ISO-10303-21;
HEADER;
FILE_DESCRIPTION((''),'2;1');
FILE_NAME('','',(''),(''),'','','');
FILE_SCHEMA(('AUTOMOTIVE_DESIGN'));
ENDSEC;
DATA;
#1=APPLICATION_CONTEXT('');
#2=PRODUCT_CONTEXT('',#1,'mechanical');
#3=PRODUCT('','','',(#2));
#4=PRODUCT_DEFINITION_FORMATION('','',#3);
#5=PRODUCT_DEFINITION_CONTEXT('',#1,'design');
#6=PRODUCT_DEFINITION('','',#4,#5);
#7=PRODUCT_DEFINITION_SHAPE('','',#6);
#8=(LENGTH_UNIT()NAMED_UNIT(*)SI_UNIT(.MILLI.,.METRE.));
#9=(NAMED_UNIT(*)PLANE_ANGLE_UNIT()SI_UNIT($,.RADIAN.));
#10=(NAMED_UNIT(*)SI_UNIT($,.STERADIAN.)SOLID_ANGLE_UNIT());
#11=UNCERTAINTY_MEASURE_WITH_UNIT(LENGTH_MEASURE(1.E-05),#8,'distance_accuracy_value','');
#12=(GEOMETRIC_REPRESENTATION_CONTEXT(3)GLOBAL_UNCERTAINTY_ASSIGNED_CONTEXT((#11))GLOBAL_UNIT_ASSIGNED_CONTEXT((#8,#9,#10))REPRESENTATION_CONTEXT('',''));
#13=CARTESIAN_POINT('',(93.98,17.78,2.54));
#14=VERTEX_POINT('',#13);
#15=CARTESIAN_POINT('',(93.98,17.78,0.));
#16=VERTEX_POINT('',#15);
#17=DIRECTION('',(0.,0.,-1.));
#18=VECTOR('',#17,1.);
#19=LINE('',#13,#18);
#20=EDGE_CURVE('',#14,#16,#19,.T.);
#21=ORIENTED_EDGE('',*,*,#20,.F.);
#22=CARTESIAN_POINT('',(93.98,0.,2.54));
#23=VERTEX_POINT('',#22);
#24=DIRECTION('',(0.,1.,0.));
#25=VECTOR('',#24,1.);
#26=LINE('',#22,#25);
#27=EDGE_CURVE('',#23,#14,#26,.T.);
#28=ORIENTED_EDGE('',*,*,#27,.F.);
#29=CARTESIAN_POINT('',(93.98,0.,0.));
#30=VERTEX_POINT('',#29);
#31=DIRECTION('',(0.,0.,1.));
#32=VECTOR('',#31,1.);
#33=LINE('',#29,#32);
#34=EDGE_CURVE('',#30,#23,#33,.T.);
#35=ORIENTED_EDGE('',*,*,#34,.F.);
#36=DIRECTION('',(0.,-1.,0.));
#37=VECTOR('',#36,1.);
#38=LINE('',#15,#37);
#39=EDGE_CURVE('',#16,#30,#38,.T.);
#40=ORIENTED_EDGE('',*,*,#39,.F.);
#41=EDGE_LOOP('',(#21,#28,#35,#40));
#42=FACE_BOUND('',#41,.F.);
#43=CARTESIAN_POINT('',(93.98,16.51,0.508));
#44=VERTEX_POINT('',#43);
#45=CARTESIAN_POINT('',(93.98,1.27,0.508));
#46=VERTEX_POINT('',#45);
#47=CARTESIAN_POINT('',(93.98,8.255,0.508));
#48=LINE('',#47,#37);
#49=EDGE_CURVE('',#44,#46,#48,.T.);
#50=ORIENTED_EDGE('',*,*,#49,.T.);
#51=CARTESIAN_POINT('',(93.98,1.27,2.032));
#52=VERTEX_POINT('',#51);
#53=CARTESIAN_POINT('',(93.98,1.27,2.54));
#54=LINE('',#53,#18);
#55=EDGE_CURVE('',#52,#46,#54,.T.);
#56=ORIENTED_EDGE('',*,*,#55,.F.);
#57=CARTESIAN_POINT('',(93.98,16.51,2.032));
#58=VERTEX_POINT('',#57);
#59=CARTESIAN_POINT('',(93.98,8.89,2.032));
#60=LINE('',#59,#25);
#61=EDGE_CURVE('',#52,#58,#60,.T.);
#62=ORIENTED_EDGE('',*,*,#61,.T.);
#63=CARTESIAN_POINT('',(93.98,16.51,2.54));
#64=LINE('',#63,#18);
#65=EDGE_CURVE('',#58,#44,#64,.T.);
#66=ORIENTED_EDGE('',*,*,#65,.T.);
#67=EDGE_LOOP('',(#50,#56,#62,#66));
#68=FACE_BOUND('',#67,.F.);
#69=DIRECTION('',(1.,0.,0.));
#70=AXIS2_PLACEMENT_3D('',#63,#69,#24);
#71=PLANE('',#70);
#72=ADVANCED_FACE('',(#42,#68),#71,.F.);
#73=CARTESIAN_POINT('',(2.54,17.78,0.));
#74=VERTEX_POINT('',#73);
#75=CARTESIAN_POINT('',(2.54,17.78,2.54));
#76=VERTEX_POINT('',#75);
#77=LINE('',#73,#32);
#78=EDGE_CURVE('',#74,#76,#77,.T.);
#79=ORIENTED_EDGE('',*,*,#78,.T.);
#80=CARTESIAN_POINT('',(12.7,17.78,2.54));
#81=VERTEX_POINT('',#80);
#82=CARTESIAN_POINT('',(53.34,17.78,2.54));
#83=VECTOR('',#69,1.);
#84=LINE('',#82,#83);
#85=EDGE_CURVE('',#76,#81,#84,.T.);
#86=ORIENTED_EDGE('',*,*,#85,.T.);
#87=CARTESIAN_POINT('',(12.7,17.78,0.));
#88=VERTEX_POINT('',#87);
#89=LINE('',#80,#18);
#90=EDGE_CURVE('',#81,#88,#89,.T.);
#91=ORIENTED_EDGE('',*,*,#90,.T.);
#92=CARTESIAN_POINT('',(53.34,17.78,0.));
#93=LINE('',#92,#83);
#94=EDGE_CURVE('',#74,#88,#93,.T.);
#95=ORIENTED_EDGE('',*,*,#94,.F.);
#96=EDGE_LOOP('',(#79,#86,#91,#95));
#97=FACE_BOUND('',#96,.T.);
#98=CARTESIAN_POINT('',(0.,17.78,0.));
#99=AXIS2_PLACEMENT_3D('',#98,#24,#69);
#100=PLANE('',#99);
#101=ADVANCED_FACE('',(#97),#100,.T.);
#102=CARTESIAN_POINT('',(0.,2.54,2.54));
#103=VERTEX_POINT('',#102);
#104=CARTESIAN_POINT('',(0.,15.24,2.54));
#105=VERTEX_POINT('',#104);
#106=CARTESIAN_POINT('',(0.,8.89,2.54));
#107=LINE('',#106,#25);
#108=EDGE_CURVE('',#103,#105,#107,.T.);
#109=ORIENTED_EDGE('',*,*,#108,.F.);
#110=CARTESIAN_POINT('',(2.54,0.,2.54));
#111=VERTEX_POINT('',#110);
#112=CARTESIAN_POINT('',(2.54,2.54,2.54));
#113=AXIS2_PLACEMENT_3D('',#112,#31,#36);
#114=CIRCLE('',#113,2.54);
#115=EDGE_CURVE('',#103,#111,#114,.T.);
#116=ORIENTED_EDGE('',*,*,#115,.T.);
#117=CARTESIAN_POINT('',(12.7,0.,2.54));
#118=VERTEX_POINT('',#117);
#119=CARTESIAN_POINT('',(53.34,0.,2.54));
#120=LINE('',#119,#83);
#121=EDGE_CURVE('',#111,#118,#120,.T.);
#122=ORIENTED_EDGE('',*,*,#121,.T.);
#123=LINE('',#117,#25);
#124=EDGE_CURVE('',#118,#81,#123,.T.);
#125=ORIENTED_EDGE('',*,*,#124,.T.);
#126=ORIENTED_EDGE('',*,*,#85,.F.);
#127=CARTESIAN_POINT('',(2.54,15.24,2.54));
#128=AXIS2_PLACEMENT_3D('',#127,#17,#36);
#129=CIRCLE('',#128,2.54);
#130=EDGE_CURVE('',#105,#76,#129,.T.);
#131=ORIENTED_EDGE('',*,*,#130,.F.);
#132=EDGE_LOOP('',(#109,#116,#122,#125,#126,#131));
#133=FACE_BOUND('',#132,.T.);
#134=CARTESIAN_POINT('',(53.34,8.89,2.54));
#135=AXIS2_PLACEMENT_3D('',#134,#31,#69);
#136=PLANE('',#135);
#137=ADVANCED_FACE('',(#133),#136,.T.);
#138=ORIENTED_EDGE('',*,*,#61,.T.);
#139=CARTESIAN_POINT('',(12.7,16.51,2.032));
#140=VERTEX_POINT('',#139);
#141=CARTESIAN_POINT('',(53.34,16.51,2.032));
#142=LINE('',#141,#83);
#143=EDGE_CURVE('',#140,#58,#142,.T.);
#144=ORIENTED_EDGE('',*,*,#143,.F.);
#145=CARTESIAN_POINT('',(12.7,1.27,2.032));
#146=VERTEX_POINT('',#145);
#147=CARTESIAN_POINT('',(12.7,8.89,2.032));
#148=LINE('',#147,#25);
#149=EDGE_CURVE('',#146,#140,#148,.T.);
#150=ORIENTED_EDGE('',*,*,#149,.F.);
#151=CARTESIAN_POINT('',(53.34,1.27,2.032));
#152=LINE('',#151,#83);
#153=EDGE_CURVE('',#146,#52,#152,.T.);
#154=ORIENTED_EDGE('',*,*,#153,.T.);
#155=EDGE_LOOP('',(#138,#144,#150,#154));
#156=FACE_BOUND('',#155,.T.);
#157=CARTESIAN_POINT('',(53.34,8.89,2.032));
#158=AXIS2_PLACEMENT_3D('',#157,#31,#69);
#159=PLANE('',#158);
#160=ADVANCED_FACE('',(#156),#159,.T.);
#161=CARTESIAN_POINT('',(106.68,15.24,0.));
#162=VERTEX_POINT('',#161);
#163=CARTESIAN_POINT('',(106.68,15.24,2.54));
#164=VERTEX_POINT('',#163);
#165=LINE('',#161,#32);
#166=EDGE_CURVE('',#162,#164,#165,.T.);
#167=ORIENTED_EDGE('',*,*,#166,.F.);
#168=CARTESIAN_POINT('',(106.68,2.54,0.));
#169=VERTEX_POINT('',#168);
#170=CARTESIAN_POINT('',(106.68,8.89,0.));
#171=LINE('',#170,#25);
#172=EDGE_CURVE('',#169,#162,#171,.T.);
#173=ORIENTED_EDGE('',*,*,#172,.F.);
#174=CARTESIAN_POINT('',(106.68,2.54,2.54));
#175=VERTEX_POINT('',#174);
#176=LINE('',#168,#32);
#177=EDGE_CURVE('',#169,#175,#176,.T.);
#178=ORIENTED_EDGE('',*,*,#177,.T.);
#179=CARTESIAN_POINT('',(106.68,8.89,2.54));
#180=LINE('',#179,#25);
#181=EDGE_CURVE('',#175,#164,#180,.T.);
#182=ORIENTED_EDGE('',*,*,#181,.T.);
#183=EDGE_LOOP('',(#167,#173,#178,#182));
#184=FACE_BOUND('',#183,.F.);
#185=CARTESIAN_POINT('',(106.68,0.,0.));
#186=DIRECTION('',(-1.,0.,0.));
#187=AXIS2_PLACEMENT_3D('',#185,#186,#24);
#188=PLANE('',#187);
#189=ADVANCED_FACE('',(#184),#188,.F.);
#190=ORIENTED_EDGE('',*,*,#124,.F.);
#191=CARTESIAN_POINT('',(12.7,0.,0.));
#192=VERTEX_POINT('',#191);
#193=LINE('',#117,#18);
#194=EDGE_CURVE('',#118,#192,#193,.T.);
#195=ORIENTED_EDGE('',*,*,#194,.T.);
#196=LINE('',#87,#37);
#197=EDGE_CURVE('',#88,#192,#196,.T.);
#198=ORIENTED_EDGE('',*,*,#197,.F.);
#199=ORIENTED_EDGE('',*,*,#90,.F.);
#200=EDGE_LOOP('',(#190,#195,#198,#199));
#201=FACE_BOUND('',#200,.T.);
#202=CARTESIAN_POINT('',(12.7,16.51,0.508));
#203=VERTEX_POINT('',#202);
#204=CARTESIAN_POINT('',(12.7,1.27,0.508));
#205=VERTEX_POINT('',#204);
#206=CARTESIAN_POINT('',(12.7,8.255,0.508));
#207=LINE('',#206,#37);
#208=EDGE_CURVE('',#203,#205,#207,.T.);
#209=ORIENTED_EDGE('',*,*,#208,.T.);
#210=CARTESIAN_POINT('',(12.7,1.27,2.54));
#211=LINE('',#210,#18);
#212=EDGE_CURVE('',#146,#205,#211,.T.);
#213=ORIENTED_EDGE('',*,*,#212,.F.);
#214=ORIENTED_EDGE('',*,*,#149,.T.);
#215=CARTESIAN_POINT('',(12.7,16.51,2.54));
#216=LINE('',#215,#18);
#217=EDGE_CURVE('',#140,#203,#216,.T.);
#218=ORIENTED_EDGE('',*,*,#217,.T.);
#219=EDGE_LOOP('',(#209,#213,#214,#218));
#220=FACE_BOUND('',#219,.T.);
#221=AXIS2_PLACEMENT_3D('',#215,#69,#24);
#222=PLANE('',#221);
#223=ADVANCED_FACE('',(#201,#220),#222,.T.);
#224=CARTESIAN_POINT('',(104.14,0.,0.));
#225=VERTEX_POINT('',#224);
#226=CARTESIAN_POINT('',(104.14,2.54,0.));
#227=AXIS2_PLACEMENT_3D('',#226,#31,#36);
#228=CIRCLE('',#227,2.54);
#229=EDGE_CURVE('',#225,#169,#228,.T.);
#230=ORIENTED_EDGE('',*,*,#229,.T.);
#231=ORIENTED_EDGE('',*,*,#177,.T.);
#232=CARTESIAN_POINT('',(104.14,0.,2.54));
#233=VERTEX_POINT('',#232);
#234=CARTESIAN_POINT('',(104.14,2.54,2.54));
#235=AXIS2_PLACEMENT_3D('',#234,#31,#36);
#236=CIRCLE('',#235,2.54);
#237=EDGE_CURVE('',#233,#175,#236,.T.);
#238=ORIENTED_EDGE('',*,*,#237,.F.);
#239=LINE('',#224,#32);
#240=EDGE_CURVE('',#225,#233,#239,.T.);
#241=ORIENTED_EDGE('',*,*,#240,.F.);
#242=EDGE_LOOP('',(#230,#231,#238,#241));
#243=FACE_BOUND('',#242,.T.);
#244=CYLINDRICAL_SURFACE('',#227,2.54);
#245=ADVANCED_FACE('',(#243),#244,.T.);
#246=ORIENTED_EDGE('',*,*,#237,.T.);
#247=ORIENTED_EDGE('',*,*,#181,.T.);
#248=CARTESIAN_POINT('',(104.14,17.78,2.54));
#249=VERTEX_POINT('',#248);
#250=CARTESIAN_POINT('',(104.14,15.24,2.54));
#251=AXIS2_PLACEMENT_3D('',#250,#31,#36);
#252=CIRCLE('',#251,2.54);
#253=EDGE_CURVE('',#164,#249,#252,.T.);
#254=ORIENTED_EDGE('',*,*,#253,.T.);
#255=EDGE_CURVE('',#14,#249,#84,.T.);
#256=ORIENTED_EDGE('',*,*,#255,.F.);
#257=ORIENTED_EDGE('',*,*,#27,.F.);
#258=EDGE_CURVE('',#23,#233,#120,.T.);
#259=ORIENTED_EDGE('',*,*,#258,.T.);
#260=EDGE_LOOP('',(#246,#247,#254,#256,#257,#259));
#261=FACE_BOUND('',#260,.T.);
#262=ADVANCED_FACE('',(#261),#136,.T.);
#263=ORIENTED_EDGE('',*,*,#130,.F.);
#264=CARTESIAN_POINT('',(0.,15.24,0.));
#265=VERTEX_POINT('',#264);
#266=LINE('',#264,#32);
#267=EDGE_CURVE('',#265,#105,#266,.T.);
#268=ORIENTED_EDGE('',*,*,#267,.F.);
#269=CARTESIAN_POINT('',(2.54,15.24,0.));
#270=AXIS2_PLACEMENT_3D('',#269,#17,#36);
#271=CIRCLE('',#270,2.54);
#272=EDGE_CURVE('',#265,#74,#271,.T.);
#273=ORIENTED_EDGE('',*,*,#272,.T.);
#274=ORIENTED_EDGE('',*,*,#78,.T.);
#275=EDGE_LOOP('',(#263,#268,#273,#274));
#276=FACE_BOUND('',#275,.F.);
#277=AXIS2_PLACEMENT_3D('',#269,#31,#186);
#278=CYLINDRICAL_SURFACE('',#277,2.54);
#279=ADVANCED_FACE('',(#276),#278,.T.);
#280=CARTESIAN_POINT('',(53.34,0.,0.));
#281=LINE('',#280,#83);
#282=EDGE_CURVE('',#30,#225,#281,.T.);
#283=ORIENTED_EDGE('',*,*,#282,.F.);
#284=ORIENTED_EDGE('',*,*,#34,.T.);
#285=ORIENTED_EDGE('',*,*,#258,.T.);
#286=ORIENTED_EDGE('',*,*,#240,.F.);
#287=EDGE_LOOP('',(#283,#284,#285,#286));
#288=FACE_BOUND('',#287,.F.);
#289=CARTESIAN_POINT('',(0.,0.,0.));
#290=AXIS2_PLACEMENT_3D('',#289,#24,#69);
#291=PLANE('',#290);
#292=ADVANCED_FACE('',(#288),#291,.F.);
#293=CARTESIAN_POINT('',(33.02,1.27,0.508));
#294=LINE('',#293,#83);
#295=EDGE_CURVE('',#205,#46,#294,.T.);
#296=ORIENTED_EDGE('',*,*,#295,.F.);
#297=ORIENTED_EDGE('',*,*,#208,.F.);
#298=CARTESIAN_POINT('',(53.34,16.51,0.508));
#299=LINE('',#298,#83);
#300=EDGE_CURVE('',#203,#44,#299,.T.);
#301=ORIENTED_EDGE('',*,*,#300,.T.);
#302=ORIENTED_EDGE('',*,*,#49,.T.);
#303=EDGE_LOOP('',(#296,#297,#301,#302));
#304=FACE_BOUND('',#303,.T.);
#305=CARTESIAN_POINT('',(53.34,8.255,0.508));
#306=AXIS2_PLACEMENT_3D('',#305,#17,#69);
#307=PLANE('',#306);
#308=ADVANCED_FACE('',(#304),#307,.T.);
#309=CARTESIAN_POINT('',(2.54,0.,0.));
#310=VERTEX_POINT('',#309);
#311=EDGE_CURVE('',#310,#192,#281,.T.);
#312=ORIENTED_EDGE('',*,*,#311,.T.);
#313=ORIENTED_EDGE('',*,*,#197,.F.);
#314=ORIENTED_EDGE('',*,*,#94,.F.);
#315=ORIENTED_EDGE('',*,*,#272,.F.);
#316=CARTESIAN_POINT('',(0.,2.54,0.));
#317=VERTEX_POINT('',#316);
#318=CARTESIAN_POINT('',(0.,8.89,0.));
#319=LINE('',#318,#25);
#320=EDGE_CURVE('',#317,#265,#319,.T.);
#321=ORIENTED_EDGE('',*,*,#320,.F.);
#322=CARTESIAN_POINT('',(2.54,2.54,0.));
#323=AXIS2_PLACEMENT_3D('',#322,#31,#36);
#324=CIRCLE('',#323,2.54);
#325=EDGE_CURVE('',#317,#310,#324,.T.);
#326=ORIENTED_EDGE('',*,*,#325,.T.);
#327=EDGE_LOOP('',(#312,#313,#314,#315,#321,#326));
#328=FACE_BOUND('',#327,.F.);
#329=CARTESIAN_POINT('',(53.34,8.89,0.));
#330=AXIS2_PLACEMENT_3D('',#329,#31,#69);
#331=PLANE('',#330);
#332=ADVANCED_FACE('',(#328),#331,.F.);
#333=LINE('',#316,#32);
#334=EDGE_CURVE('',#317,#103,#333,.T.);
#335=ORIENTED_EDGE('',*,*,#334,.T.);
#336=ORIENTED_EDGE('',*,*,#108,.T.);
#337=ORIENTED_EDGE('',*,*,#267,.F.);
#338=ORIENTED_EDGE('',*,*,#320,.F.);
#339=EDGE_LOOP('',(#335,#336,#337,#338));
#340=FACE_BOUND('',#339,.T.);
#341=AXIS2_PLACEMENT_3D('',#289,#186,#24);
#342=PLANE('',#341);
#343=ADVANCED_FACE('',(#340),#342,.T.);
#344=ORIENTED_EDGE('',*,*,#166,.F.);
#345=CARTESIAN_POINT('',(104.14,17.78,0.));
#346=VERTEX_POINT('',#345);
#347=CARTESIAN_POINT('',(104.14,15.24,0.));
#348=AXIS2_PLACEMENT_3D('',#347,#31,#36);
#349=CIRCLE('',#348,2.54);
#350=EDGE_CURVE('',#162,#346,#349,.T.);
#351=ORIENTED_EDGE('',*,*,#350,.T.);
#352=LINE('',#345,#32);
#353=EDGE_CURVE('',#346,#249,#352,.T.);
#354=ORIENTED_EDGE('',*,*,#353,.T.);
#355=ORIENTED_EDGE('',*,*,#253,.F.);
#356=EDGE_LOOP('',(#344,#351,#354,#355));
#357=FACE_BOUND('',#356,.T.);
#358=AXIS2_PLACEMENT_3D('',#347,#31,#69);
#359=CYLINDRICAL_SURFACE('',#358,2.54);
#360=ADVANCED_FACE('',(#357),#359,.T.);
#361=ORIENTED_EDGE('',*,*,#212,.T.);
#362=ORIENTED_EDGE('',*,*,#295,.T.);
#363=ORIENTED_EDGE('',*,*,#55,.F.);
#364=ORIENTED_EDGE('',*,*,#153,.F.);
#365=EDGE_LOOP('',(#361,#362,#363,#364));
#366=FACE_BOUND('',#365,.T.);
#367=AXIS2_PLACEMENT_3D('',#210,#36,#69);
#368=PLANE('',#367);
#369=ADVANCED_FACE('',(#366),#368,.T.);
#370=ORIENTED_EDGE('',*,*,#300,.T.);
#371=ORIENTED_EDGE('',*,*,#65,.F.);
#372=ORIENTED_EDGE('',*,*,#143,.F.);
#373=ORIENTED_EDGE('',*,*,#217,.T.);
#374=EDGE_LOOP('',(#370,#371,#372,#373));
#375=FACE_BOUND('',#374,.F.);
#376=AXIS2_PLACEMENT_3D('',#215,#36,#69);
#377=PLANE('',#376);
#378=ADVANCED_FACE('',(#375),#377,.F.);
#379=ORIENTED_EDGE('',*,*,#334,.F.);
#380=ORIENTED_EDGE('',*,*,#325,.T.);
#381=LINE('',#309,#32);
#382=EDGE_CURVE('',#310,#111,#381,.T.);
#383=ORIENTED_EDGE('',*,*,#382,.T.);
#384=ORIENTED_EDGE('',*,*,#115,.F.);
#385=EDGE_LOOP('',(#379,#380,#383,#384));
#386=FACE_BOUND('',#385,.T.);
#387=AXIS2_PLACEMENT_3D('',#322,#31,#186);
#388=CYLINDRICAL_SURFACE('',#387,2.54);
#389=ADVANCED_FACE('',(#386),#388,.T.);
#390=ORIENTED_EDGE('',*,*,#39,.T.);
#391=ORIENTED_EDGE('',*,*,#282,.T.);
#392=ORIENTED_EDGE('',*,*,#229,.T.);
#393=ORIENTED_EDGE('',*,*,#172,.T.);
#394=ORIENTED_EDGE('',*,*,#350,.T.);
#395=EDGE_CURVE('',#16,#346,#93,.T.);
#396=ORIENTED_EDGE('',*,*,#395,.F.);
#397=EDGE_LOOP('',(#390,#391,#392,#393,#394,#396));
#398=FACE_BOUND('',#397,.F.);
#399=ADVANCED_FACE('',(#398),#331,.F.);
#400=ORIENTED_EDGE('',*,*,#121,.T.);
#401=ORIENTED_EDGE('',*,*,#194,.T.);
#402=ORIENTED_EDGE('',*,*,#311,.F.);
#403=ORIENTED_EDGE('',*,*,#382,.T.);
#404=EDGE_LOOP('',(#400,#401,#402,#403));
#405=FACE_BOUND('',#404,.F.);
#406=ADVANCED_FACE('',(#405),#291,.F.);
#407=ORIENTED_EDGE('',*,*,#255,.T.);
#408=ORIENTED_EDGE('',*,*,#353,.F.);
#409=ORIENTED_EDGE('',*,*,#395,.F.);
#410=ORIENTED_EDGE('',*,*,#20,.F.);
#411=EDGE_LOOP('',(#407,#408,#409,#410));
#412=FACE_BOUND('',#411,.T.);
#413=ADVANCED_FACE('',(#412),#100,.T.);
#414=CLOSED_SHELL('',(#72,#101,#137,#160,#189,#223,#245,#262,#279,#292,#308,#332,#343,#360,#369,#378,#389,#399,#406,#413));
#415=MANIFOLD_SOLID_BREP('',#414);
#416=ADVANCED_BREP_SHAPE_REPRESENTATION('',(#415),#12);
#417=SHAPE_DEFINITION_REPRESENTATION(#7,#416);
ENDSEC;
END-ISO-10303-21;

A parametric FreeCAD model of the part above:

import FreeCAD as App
import Part
import Sketcher

V = App.Vector
Q = App.Units.Quantity


def edges_at(feature, points):
    """Names of the edges that pass closest to the given points."""
    edges = feature.Shape.Edges
    near = lambda p: min(range(len(edges)), key=lambda i: edges[i].distToShape(Part.Vertex(*p))[0])
    return sorted({f"Edge{near(p) + 1}" for p in points})

doc = App.newDocument("Part")
body = doc.addObject("PartDesign::Body", "Body")

# Sketch on XY plane
sketch1 = body.newObject("Sketcher::SketchObject", "Sketch")
sketch1.AttachmentSupport = (doc.getObject("XY_Plane"), [""])
sketch1.MapMode = "FlatFace"
sketch1.addGeometry([
    Part.LineSegment(V(0, 18, 0), V(0, 0, 0)),
    Part.LineSegment(V(0, 0, 0), V(107, 0, 0)),
    Part.LineSegment(V(107, 0, 0), V(107, 18, 0)),
    Part.LineSegment(V(107, 18, 0), V(0, 18, 0)),
], False)
sketch1.addConstraint([
    Sketcher.Constraint("Coincident", 0, 2, 1, 1),
    Sketcher.Constraint("Coincident", 1, 2, 2, 1),
    Sketcher.Constraint("Coincident", 2, 2, 3, 1),
    Sketcher.Constraint("Coincident", 3, 2, 0, 1),
    Sketcher.Constraint("Vertical", 0),
    Sketcher.Constraint("Horizontal", 1),
    Sketcher.Constraint("Vertical", 2),
    Sketcher.Constraint("Horizontal", 3),
    Sketcher.Constraint("Coincident", 0, 2, -1, 1),
    Sketcher.Constraint("DistanceX", 1, 1, 1, 2, Q("4.2 in")),
    Sketcher.Constraint("DistanceY", 0, 2, 0, 1, Q("0.7 in")),
])
pad1 = body.newObject("PartDesign::Pad", "Pad")
pad1.Profile = sketch1
pad1.Length = Q("0.1 in")
doc.recompute()

fillet = body.newObject("PartDesign::Fillet", "Fillet")
fillet.Base = (pad1, edges_at(pad1, [
    (106.68, 17.78, 1.27),
    (106.68, 0, 1.27),
    (0, 17.78, 1.27),
    (0, 0, 1.27),
]))
fillet.Radius = Q("0.1 in")

# Sketch on XY plane
sketch2 = body.newObject("Sketcher::SketchObject", "Sketch001")
sketch2.AttachmentSupport = (doc.getObject("XY_Plane"), [""])
sketch2.MapMode = "FlatFace"
sketch2.AttachmentOffset = App.Placement(V(0, 0, 0.1 * 25.4), App.Rotation())
sketch2.addGeometry([
    Part.LineSegment(V(12.7, 17.8, 0), V(12.7, 16.5, 0)),  # 0
    Part.LineSegment(V(12.7, 16.5, 0), V(94, 16.5, 0)),  # 1
    Part.LineSegment(V(94, 16.5, 0), V(94, 17.8, 0)),  # 2
    Part.LineSegment(V(94, 17.8, 0), V(12.7, 17.8, 0)),  # 3
    Part.LineSegment(V(12.7, 1.3, 0), V(12.7, 0, 0)),  # 4
    Part.LineSegment(V(12.7, 0, 0), V(94, 0, 0)),  # 5
    Part.LineSegment(V(94, 0, 0), V(94, 1.3, 0)),  # 6
    Part.LineSegment(V(94, 1.3, 0), V(12.7, 1.3, 0)),  # 7
], False)
sketch2.addConstraint([
    Sketcher.Constraint("Coincident", 0, 2, 1, 1),
    Sketcher.Constraint("Coincident", 1, 2, 2, 1),
    Sketcher.Constraint("Coincident", 2, 2, 3, 1),
    Sketcher.Constraint("Coincident", 3, 2, 0, 1),
    Sketcher.Constraint("Coincident", 4, 2, 5, 1),
    Sketcher.Constraint("Coincident", 5, 2, 6, 1),
    Sketcher.Constraint("Coincident", 6, 2, 7, 1),
    Sketcher.Constraint("Coincident", 7, 2, 4, 1),
    Sketcher.Constraint("Vertical", 0),
    Sketcher.Constraint("Horizontal", 1),
    Sketcher.Constraint("Vertical", 2),
    Sketcher.Constraint("Horizontal", 3),
    Sketcher.Constraint("Vertical", 4),
    Sketcher.Constraint("Horizontal", 5),
    Sketcher.Constraint("Vertical", 6),
    Sketcher.Constraint("Horizontal", 7),
    Sketcher.Constraint("PointOnObject", 4, 2, -1),
    Sketcher.Constraint("Vertical", 3, 2, 4, 2),
    Sketcher.Constraint("Vertical", 2, 2, 5, 2),
    Sketcher.Constraint("Equal", 2, 4),
    Sketcher.Constraint("DistanceX", 1, 1, 1, 2, Q("3.2 in")),
    Sketcher.Constraint("DistanceY", 0, 2, 0, 1, Q("0.05 in")),
    Sketcher.Constraint("DistanceX", -1, 1, 0, 2, Q("0.5 in")),
    Sketcher.Constraint("DistanceY", -1, 1, 2, 2, Q("0.7 in")),
])
pocket1 = body.newObject("PartDesign::Pocket", "Pocket")
pocket1.Profile = sketch2
pocket1.Length = Q("1 in")

# Sketch on XY plane
sketch3 = body.newObject("Sketcher::SketchObject", "Sketch002")
sketch3.AttachmentSupport = (doc.getObject("XY_Plane"), [""])
sketch3.MapMode = "FlatFace"
sketch3.AttachmentOffset = App.Placement(V(0, 0, 0.1 * 25.4), App.Rotation())
sketch3.addGeometry([
    Part.LineSegment(V(13, 17, 0), V(13, 1, 0)),
    Part.LineSegment(V(13, 1, 0), V(94, 1, 0)),
    Part.LineSegment(V(94, 1, 0), V(94, 17, 0)),
    Part.LineSegment(V(94, 17, 0), V(13, 17, 0)),
], False)
sketch3.addConstraint([
    Sketcher.Constraint("Coincident", 0, 2, 1, 1),
    Sketcher.Constraint("Coincident", 1, 2, 2, 1),
    Sketcher.Constraint("Coincident", 2, 2, 3, 1),
    Sketcher.Constraint("Coincident", 3, 2, 0, 1),
    Sketcher.Constraint("Vertical", 0),
    Sketcher.Constraint("Horizontal", 1),
    Sketcher.Constraint("Vertical", 2),
    Sketcher.Constraint("Horizontal", 3),
    Sketcher.Constraint("DistanceX", 1, 1, 1, 2, Q("3.2 in")),
    Sketcher.Constraint("DistanceY", 0, 2, 0, 1, Q("0.6 in")),
    Sketcher.Constraint("DistanceX", -1, 1, 0, 2, Q("0.5 in")),
    Sketcher.Constraint("DistanceY", -1, 1, 0, 2, Q("0.05 in")),
])
pocket2 = body.newObject("PartDesign::Pocket", "Pocket001")
pocket2.Profile = sketch3
pocket2.Length = Q("0.02 in")

# Sketch on XY plane
sketch4 = body.newObject("Sketcher::SketchObject", "Sketch003")
sketch4.AttachmentSupport = (doc.getObject("XY_Plane"), [""])
sketch4.MapMode = "FlatFace"
sketch4.addGeometry([
    Part.LineSegment(V(13, 0, 0), V(13, 17, 0)),
    Part.LineSegment(V(13, 17, 0), V(94, 17, 0)),
    Part.LineSegment(V(94, 17, 0), V(94, 0, 0)),
    Part.LineSegment(V(94, 0, 0), V(13, 0, 0)),
], False)
sketch4.addConstraint([
    Sketcher.Constraint("Coincident", 0, 2, 1, 1),
    Sketcher.Constraint("Coincident", 1, 2, 2, 1),
    Sketcher.Constraint("Coincident", 2, 2, 3, 1),
    Sketcher.Constraint("Coincident", 3, 2, 0, 1),
    Sketcher.Constraint("Vertical", 0),
    Sketcher.Constraint("Horizontal", 1),
    Sketcher.Constraint("Vertical", 2),
    Sketcher.Constraint("Horizontal", 3),
    Sketcher.Constraint("PointOnObject", 2, 2, -1),
    Sketcher.Constraint("DistanceX", 1, 1, 1, 2, Q("3.2 in")),
    Sketcher.Constraint("DistanceY", 0, 1, 0, 2, Q("0.65 in")),
    Sketcher.Constraint("DistanceX", -1, 1, 0, 2, Q("0.5 in")),
])
pocket3 = body.newObject("PartDesign::Pocket", "Pocket002")
pocket3.Profile = sketch4
pocket3.Length = Q("0.02 in")
pocket3.Reversed = True

doc.recompute()
